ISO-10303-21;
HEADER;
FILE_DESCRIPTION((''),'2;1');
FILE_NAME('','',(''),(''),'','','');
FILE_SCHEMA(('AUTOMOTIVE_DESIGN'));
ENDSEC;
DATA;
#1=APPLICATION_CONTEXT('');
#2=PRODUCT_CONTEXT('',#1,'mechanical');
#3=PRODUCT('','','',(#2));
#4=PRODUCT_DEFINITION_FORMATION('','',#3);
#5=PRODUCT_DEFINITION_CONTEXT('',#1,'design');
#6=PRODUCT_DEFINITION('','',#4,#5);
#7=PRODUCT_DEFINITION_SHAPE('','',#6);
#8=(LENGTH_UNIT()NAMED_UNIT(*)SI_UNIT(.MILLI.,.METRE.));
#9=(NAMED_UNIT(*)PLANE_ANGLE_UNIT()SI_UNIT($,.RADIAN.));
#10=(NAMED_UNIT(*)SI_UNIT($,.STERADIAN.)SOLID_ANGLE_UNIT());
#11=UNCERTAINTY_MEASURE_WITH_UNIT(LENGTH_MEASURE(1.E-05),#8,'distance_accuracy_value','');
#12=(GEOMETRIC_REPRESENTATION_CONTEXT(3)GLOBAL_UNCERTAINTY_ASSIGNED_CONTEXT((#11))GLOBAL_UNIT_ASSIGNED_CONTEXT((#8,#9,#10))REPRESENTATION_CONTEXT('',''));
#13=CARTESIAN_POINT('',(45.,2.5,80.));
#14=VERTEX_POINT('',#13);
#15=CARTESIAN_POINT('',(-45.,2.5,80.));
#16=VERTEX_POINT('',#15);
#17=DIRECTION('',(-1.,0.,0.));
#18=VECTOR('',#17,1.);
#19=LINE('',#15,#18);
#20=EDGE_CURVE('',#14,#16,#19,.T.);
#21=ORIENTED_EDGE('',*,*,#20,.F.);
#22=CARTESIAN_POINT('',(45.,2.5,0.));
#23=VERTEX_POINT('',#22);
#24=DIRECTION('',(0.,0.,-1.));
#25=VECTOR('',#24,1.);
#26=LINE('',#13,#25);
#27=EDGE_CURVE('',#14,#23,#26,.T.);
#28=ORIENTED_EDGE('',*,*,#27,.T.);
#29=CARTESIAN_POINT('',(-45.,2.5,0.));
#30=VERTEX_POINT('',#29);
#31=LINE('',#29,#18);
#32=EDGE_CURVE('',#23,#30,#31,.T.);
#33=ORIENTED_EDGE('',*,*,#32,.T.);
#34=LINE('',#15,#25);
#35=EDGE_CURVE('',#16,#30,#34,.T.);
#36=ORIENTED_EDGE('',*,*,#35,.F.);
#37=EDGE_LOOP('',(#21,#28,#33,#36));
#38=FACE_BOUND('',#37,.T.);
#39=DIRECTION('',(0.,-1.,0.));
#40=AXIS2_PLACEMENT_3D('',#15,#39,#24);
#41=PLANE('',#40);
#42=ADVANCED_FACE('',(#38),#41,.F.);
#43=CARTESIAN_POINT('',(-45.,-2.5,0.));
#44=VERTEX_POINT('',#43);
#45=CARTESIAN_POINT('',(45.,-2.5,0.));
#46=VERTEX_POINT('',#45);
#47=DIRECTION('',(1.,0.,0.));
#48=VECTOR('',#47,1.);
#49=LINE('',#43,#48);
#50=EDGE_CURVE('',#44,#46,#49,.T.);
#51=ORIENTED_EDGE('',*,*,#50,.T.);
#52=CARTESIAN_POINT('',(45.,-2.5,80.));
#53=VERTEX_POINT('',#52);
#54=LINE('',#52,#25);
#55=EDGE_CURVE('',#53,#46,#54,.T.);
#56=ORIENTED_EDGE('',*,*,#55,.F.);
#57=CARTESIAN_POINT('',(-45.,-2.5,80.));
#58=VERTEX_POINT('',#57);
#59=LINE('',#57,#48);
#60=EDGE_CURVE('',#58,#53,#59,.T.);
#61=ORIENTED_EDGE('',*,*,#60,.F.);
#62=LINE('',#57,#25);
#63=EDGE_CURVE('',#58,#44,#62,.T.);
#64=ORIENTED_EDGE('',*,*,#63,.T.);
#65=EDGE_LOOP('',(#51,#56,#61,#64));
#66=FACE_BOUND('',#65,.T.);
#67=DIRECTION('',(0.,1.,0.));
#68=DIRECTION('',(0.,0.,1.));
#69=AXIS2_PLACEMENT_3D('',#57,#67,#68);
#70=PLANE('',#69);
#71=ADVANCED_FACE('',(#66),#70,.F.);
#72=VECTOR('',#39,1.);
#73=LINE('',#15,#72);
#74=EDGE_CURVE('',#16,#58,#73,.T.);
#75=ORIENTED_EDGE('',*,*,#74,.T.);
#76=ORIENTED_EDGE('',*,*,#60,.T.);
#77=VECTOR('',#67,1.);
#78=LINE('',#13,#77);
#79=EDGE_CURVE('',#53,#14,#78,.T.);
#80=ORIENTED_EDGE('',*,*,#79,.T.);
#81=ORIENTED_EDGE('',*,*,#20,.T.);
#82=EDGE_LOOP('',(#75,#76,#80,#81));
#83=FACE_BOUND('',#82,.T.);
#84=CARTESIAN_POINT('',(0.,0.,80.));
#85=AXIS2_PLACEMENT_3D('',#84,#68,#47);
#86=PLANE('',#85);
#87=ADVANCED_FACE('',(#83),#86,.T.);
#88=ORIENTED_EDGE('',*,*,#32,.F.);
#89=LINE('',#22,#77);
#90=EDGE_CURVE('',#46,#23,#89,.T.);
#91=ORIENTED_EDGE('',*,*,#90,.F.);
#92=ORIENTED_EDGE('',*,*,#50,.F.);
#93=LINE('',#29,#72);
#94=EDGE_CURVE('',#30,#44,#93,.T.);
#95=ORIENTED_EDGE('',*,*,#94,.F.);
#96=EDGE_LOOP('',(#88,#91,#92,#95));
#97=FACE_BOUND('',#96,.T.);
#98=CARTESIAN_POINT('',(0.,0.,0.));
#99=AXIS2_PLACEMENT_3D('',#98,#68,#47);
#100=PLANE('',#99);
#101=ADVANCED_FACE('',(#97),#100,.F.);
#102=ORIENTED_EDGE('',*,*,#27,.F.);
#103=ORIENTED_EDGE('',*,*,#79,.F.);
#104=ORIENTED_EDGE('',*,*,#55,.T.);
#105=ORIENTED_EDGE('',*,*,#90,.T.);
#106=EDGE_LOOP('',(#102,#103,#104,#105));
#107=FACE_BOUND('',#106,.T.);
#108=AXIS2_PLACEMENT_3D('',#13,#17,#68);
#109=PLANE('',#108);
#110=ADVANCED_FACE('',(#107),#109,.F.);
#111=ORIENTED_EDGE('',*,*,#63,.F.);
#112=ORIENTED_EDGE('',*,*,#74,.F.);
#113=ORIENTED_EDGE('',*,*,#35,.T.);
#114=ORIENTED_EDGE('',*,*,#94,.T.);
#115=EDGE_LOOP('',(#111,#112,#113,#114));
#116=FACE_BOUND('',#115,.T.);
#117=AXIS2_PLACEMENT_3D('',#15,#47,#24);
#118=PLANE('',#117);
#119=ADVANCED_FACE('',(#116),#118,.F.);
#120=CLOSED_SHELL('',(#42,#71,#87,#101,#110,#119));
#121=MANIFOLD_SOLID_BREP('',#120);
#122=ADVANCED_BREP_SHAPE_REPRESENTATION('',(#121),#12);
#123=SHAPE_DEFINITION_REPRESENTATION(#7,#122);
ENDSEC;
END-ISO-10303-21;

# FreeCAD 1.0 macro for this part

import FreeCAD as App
import Part
import Sketcher
from FreeCAD import Vector
Q = App.Units.Quantity

doc = App.newDocument("Part")
body = doc.addObject("PartDesign::Body", "Body")

# Sketch on XY plane
sketch1 = doc.addObject("Sketcher::SketchObject", "Sketch")
body.addObject(sketch1)
sketch1.AttachmentSupport = (doc.XY_Plane, [""])
sketch1.MapMode = "FlatFace"
sketch1.addGeometry([
    Part.LineSegment(Vector(-45, 2, 0), Vector(-45, -2, 0)),
    Part.LineSegment(Vector(-45, -2, 0), Vector(45, -2, 0)),
    Part.LineSegment(Vector(45, -2, 0), Vector(45, 2, 0)),
    Part.LineSegment(Vector(45, 2, 0), Vector(-45, 2, 0)),
], False)
sketch1.addConstraint([
    Sketcher.Constraint("Coincident", 0, 2, 1, 1),
    Sketcher.Constraint("Coincident", 1, 2, 2, 1),
    Sketcher.Constraint("Coincident", 2, 2, 3, 1),
    Sketcher.Constraint("Coincident", 3, 2, 0, 1),
    Sketcher.Constraint("Vertical", 0),
    Sketcher.Constraint("Horizontal", 1),
    Sketcher.Constraint("Vertical", 2),
    Sketcher.Constraint("Horizontal", 3),
    Sketcher.Constraint("Symmetric", 0, 2, 2, 2, -1, 1),
    Sketcher.Constraint("DistanceX", 1, 1, 1, 2, Q("90 mm")),
    Sketcher.Constraint("DistanceY", 0, 2, 0, 1, Q("5 mm")),
])
pad1 = doc.addObject("PartDesign::Pad", "Pad")
body.addObject(pad1)
pad1.Profile = sketch1
pad1.Length = 80

doc.recompute()
